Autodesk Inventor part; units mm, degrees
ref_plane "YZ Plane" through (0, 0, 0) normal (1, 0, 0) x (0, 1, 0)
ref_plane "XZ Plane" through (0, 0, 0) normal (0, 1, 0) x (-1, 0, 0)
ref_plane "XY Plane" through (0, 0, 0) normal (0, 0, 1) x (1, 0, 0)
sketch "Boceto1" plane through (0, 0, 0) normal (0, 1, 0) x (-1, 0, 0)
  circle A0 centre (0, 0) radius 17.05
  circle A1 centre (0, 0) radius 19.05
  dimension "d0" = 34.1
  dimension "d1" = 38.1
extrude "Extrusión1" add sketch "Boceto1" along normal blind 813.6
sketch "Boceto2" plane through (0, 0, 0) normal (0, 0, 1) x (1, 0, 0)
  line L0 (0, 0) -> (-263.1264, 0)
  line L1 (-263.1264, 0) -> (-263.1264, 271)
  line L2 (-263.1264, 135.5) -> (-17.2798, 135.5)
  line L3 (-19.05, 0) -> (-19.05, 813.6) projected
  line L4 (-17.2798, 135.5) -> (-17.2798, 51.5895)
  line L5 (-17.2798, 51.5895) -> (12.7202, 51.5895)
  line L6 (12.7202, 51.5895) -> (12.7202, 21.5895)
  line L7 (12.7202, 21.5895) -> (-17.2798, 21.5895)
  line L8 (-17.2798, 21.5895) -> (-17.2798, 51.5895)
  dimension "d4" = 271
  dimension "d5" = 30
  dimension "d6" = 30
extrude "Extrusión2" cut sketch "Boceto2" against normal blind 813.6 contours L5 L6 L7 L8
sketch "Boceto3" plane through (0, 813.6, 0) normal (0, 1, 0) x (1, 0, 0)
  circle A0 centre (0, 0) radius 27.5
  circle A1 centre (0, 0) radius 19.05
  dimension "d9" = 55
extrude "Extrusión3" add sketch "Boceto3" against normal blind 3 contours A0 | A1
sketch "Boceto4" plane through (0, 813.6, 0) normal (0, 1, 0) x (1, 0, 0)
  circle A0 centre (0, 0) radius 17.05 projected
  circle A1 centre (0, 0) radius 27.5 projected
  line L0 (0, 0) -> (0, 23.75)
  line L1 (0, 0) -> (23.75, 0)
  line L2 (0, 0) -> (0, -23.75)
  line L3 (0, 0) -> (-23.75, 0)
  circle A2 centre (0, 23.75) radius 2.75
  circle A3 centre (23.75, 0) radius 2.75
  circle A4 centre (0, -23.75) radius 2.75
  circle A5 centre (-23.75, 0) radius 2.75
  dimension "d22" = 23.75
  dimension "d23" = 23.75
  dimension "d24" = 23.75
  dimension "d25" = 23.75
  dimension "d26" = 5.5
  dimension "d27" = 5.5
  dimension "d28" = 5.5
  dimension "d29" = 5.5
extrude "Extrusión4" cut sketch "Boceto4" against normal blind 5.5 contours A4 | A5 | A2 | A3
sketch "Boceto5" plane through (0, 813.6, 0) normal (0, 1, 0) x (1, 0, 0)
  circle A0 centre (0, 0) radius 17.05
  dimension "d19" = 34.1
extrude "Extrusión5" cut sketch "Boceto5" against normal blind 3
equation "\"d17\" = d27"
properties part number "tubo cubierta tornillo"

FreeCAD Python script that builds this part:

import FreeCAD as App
import Part
import Sketcher
from FreeCAD import Vector
Q = App.Units.Quantity

doc = App.newDocument("Part")
body = doc.addObject("PartDesign::Body", "Body")

# Sketch on XZ plane
sketch1 = body.newObject("Sketcher::SketchObject", "Sketch")
sketch1.AttachmentSupport = (doc.getObject("XZ_Plane"), [""])
sketch1.MapMode = "FlatFace"
sketch1.addGeometry([
    Part.Circle(Vector(0, 0, 0), Vector(0, 0, 1), 19),
    Part.Circle(Vector(0, 0, 0), Vector(0, 0, 1), 17),
], False)
sketch1.addConstraint([
    Sketcher.Constraint("Coincident", 0, 3, -1, 1),
    Sketcher.Constraint("Coincident", 1, 3, -1, 1),
    Sketcher.Constraint("Diameter", 0, Q("38.1 mm")),
    Sketcher.Constraint("Diameter", 1, Q("34.1 mm")),
])
pad1 = body.newObject("PartDesign::Pad", "Pad")
pad1.Profile = sketch1
pad1.Length = 813.6
pad1.Reversed = True

# Sketch on XY plane
sketch2 = body.newObject("Sketcher::SketchObject", "Sketch001")
sketch2.AttachmentSupport = (doc.getObject("XY_Plane"), [""])
sketch2.MapMode = "FlatFace"
sketch2.addGeometry([
    Part.LineSegment(Vector(13, 52, 0), Vector(-17, 52, 0)),
    Part.LineSegment(Vector(-17, 52, 0), Vector(-17, 22, 0)),
    Part.LineSegment(Vector(-17, 22, 0), Vector(13, 22, 0)),
    Part.LineSegment(Vector(13, 22, 0), Vector(13, 52, 0)),
], False)
sketch2.addConstraint([
    Sketcher.Constraint("Coincident", 0, 2, 1, 1),
    Sketcher.Constraint("Coincident", 1, 2, 2, 1),
    Sketcher.Constraint("Coincident", 2, 2, 3, 1),
    Sketcher.Constraint("Coincident", 3, 2, 0, 1),
    Sketcher.Constraint("Horizontal", 0),
    Sketcher.Constraint("Vertical", 1),
    Sketcher.Constraint("Horizontal", 2),
    Sketcher.Constraint("Vertical", 3),
    Sketcher.Constraint("Equal", 2, 1),
    Sketcher.Constraint("DistanceX", 0, 2, 0, 1, Q("30 mm")),
    Sketcher.Constraint("DistanceX", 0, 2, -1, 1, Q("17.2798 mm")),
    Sketcher.Constraint("DistanceY", -1, 1, 0, 2, Q("51.5895 mm")),
])
pocket1 = body.newObject("PartDesign::Pocket", "Pocket")
pocket1.Profile = sketch2
pocket1.Length = 813.6

# Sketch on XZ plane
sketch3 = body.newObject("Sketcher::SketchObject", "Sketch002")
sketch3.AttachmentSupport = (doc.getObject("XZ_Plane"), [""])
sketch3.MapMode = "FlatFace"
sketch3.AttachmentOffset = App.Placement(Vector(0, 0, -813.6), App.Rotation())
sketch3.addGeometry(Part.Circle(Vector(0, 0, 0), Vector(0, 0, 1), 28), False)
sketch3.addConstraint([
    Sketcher.Constraint("Coincident", 0, 3, -1, 1),
    Sketcher.Constraint("Diameter", 0, Q("55 mm")),
])
pad2 = body.newObject("PartDesign::Pad", "Pad001")
pad2.Profile = sketch3
pad2.Length = 3

# Sketch on XZ plane
sketch4 = body.newObject("Sketcher::SketchObject", "Sketch003")
sketch4.AttachmentSupport = (doc.getObject("XZ_Plane"), [""])
sketch4.MapMode = "FlatFace"
sketch4.AttachmentOffset = App.Placement(Vector(0, 0, -813.6), App.Rotation())
sketch4.addGeometry([
    Part.Circle(Vector(0, 23.8, 0), Vector(0, 0, 1), 2.8),
    Part.Circle(Vector(-23.8, 0, 0), Vector(0, 0, 1), 2.8),
    Part.Circle(Vector(0, -23.8, 0), Vector(0, 0, 1), 2.8),
    Part.Circle(Vector(23.8, 0, 0), Vector(0, 0, 1), 2.8),
], False)
sketch4.addConstraint([
    Sketcher.Constraint("Equal", 0, 1),
    Sketcher.Constraint("Equal", 1, 2),
    Sketcher.Constraint("Equal", 2, 3),
    Sketcher.Constraint("Symmetric", 0, 3, 2, 3, -1, 1),
    Sketcher.Constraint("Symmetric", 1, 3, 3, 3, -1, 1),
    Sketcher.Constraint("PointOnObject", 0, 3, -2),
    Sketcher.Constraint("PointOnObject", 1, 3, -1),
    Sketcher.Constraint("Diameter", 0, Q("5.5 mm")),
    Sketcher.Constraint("DistanceY", -1, 1, 0, 3, Q("23.75 mm")),
    Sketcher.Constraint("DistanceX", 1, 3, -1, 1, Q("23.75 mm")),
])
pocket2 = body.newObject("PartDesign::Pocket", "Pocket001")
pocket2.Profile = sketch4
pocket2.Length = 5.5
pocket2.Reversed = True

# Sketch on XZ plane
sketch5 = body.newObject("Sketcher::SketchObject", "Sketch004")
sketch5.AttachmentSupport = (doc.getObject("XZ_Plane"), [""])
sketch5.MapMode = "FlatFace"
sketch5.AttachmentOffset = App.Placement(Vector(0, 0, -813.6), App.Rotation())
sketch5.addGeometry(Part.Circle(Vector(0, 0, 0), Vector(0, 0, 1), 17), False)
sketch5.addConstraint([
    Sketcher.Constraint("Coincident", 0, 3, -1, 1),
    Sketcher.Constraint("Diameter", 0, Q("34.1 mm")),
])
pocket3 = body.newObject("PartDesign::Pocket", "Pocket002")
pocket3.Profile = sketch5
pocket3.Length = 3
pocket3.Reversed = True

doc.recompute()
